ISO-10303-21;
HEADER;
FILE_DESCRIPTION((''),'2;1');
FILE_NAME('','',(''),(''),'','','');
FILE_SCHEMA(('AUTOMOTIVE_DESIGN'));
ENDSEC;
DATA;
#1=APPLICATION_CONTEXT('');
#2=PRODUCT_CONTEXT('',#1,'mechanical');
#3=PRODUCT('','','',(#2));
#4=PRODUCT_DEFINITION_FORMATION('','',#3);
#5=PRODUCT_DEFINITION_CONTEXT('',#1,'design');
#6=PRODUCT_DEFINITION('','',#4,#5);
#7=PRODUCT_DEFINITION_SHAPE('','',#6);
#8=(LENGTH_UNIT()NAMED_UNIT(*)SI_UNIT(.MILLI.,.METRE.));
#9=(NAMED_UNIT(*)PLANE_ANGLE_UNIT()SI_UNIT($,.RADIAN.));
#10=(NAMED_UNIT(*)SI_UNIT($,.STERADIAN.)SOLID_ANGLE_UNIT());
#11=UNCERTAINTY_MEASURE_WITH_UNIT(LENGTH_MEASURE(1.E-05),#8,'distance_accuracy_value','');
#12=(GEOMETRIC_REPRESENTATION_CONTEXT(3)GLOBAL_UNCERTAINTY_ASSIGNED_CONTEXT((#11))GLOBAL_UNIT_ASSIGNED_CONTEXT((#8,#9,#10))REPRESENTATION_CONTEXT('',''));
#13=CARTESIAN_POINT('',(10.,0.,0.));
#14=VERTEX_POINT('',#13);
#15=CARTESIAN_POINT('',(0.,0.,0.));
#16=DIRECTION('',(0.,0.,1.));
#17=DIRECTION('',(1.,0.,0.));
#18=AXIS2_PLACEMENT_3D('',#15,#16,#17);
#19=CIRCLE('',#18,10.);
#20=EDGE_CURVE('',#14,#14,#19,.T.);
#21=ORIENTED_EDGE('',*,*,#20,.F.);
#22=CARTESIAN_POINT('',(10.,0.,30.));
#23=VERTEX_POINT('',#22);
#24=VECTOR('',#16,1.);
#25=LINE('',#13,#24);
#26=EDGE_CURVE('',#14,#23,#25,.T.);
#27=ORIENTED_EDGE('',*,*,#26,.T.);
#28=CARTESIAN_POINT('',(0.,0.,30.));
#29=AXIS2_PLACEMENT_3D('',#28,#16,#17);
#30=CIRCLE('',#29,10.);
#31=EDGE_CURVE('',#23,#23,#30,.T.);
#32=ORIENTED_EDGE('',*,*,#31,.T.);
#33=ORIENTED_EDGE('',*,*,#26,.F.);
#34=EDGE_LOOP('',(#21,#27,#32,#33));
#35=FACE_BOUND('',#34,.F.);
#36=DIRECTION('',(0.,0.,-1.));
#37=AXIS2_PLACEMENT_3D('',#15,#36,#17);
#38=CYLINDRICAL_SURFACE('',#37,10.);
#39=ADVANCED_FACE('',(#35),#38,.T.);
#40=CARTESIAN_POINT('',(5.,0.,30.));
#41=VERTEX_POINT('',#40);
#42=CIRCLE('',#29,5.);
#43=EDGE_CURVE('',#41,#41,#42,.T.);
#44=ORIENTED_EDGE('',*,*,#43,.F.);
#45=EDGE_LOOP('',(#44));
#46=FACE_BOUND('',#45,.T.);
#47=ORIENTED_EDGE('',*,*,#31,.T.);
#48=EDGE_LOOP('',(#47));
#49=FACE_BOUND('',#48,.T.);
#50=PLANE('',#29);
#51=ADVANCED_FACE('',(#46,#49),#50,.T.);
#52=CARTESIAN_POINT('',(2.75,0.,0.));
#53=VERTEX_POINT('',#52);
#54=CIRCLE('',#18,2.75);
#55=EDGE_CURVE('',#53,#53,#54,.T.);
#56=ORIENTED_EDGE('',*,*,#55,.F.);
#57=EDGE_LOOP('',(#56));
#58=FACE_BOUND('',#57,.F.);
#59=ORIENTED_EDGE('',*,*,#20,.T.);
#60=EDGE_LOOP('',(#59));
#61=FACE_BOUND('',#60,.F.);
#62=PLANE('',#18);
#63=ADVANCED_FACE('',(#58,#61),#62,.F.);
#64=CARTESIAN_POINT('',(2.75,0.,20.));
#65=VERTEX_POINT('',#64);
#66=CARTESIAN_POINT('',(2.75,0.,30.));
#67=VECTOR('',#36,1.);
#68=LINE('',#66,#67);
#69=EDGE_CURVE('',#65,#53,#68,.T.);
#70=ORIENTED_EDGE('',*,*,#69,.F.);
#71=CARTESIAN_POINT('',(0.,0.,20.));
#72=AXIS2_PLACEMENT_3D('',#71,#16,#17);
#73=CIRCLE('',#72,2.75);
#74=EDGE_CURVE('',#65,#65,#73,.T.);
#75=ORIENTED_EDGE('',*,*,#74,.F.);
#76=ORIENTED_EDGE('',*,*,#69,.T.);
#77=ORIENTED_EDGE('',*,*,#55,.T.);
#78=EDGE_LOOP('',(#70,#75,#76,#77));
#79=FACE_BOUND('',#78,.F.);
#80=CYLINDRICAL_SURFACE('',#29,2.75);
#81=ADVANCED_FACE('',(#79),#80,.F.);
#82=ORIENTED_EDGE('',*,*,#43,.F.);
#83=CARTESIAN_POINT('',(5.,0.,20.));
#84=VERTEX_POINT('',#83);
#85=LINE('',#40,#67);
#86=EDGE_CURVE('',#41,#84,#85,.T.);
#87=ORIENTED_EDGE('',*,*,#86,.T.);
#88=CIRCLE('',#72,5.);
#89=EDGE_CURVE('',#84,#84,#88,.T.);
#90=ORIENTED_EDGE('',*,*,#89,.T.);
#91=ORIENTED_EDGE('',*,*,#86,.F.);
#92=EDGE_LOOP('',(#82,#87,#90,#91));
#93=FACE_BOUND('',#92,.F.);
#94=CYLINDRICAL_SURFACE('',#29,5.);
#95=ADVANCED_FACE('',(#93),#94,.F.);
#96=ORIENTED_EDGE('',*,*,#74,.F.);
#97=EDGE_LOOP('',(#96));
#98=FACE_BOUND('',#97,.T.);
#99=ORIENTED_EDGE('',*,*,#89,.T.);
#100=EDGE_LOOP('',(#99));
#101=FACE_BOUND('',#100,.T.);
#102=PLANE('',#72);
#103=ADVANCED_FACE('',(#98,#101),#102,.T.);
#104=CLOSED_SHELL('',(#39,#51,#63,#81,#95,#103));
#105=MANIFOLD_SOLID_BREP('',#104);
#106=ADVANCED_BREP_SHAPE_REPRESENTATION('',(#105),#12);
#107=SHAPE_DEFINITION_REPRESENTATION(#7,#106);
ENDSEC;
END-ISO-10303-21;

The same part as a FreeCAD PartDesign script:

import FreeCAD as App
import Part
import Sketcher
Q = App.Units.Quantity

doc = App.newDocument("Part")
body = doc.addObject("PartDesign::Body", "Body")

sketch1 = body.newObject("Sketcher::SketchObject", "Sketch")
sketch1.AttachmentSupport = (doc.getObject("XY_Plane"), [""])
sketch1.MapMode = "FlatFace"
sketch1.addGeometry(Part.Circle(App.Vector(0, 0, 0), App.Vector(0, 0, 1), 10), False)
sketch1.addConstraint([
    Sketcher.Constraint("Coincident", 0, 3, -1, 1),
    Sketcher.Constraint("Diameter", 0, Q("20 mm")),
])
pad1 = body.newObject("PartDesign::Pad", "Pad")
pad1.Profile = sketch1
pad1.Length = 30

sketch2 = body.newObject("Sketcher::SketchObject", "Sketch001")
sketch2.AttachmentSupport = (doc.getObject("XY_Plane"), [""])
sketch2.MapMode = "FlatFace"
sketch2.AttachmentOffset = App.Placement(App.Vector(0, 0, 30), App.Rotation())
sketch2.addGeometry(Part.Circle(App.Vector(0, 0, 0), App.Vector(0, 0, 1), 2.75), False)
sketch2.addConstraint([
    Sketcher.Constraint("Coincident", 0, 3, -1, 1),
    Sketcher.Constraint("Diameter", 0, Q("5.5 mm")),
])
pocket1 = body.newObject("PartDesign::Pocket", "Pocket")
pocket1.Profile = sketch2
pocket1.Type = "ThroughAll"

sketch3 = body.newObject("Sketcher::SketchObject", "Sketch002")
sketch3.AttachmentSupport = (doc.getObject("XY_Plane"), [""])
sketch3.MapMode = "FlatFace"
sketch3.AttachmentOffset = App.Placement(App.Vector(0, 0, 30), App.Rotation())
sketch3.addGeometry(Part.Circle(App.Vector(0, 0, 0), App.Vector(0, 0, 1), 5), False)
sketch3.addConstraint([
    Sketcher.Constraint("Coincident", 0, 3, -1, 1),
    Sketcher.Constraint("Diameter", 0, Q("10 mm")),
])
pocket2 = body.newObject("PartDesign::Pocket", "Pocket001")
pocket2.Profile = sketch3
pocket2.Length = 10

doc.recompute()
